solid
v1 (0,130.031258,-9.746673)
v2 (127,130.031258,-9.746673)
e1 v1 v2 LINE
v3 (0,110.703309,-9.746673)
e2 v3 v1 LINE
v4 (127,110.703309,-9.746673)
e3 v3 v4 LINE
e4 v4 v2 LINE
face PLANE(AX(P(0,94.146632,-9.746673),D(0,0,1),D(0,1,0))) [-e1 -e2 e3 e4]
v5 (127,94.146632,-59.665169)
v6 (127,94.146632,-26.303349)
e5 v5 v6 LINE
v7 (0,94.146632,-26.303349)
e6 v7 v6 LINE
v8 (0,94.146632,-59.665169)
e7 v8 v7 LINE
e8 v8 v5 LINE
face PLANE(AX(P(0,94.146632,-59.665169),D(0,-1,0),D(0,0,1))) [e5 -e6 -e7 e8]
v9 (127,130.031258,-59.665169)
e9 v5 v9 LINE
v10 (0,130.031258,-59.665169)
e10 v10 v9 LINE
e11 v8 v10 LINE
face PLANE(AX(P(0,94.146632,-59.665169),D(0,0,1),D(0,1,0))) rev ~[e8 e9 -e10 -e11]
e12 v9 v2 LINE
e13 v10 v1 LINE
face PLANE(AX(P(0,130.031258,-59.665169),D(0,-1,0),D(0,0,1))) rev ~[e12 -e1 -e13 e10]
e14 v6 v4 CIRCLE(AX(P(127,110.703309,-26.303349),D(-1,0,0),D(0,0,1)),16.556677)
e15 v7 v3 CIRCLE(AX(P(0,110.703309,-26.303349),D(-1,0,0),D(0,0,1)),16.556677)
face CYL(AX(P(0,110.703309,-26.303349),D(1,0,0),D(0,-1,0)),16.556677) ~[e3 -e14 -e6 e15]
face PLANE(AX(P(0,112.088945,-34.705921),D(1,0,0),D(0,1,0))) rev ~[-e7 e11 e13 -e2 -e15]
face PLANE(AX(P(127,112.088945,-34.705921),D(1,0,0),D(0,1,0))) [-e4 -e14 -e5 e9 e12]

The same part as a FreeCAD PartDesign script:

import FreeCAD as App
import Part
import Sketcher


def edges_at(feature, points):
    """Names of the edges that pass closest to the given points."""
    edges = feature.Shape.Edges
    near = lambda p: min(range(len(edges)), key=lambda i: edges[i].distToShape(Part.Vertex(*p))[0])
    return sorted({f"Edge{near(p) + 1}" for p in points})

doc = App.newDocument("Part")
params = doc.addObject("Spreadsheet::Sheet", "Params")
for row, (alias, value) in enumerate([
    ("pad1_length", "5 in"),
    ("fillet_radius", "16.556677 mm"),
], start=1):
    params.set(f"A{row}", alias)
    params.set(f"B{row}", "=" + value)
    params.setAlias(f"B{row}", alias)

body = doc.addObject("PartDesign::Body", "Body")

# Sketch on YZ plane
sketch1 = body.newObject("Sketcher::SketchObject", "Sketch")
sketch1.AttachmentSupport = (doc.getObject("YZ_Plane"), [""])
sketch1.MapMode = "FlatFace"
sketch1.addGeometry([
    Part.LineSegment(App.Vector(94, -10, 0), App.Vector(94, -60, 0)),
    Part.LineSegment(App.Vector(94, -60, 0), App.Vector(130, -60, 0)),
    Part.LineSegment(App.Vector(130, -60, 0), App.Vector(130, -10, 0)),
    Part.LineSegment(App.Vector(130, -10, 0), App.Vector(94, -10, 0)),
], False)
sketch1.addConstraint([
    Sketcher.Constraint("Coincident", 0, 2, 1, 1),
    Sketcher.Constraint("Coincident", 1, 2, 2, 1),
    Sketcher.Constraint("Coincident", 2, 2, 3, 1),
    Sketcher.Constraint("Coincident", 3, 2, 0, 1),
    Sketcher.Constraint("Vertical", 0),
    Sketcher.Constraint("Horizontal", 1),
    Sketcher.Constraint("Vertical", 2),
    Sketcher.Constraint("Horizontal", 3),
    Sketcher.Constraint("DistanceX", 1, 1, 1, 2, 35.884626),
    Sketcher.Constraint("DistanceY", 0, 2, 0, 1, 49.918497),
    Sketcher.Constraint("DistanceX", -1, 1, 0, 2, 94.146632),
    Sketcher.Constraint("DistanceY", 0, 2, -1, 1, 59.665169),
])
pad1 = body.newObject("PartDesign::Pad", "Pad")
pad1.Profile = sketch1
pad1.setExpression("Length", "Params.pad1_length")
doc.recompute()

fillet = body.newObject("PartDesign::Fillet", "Fillet")
fillet.Base = (pad1, edges_at(pad1, [(63.5, 94.147, -9.747)]))
fillet.setExpression("Radius", "Params.fillet_radius")

doc.recompute()
